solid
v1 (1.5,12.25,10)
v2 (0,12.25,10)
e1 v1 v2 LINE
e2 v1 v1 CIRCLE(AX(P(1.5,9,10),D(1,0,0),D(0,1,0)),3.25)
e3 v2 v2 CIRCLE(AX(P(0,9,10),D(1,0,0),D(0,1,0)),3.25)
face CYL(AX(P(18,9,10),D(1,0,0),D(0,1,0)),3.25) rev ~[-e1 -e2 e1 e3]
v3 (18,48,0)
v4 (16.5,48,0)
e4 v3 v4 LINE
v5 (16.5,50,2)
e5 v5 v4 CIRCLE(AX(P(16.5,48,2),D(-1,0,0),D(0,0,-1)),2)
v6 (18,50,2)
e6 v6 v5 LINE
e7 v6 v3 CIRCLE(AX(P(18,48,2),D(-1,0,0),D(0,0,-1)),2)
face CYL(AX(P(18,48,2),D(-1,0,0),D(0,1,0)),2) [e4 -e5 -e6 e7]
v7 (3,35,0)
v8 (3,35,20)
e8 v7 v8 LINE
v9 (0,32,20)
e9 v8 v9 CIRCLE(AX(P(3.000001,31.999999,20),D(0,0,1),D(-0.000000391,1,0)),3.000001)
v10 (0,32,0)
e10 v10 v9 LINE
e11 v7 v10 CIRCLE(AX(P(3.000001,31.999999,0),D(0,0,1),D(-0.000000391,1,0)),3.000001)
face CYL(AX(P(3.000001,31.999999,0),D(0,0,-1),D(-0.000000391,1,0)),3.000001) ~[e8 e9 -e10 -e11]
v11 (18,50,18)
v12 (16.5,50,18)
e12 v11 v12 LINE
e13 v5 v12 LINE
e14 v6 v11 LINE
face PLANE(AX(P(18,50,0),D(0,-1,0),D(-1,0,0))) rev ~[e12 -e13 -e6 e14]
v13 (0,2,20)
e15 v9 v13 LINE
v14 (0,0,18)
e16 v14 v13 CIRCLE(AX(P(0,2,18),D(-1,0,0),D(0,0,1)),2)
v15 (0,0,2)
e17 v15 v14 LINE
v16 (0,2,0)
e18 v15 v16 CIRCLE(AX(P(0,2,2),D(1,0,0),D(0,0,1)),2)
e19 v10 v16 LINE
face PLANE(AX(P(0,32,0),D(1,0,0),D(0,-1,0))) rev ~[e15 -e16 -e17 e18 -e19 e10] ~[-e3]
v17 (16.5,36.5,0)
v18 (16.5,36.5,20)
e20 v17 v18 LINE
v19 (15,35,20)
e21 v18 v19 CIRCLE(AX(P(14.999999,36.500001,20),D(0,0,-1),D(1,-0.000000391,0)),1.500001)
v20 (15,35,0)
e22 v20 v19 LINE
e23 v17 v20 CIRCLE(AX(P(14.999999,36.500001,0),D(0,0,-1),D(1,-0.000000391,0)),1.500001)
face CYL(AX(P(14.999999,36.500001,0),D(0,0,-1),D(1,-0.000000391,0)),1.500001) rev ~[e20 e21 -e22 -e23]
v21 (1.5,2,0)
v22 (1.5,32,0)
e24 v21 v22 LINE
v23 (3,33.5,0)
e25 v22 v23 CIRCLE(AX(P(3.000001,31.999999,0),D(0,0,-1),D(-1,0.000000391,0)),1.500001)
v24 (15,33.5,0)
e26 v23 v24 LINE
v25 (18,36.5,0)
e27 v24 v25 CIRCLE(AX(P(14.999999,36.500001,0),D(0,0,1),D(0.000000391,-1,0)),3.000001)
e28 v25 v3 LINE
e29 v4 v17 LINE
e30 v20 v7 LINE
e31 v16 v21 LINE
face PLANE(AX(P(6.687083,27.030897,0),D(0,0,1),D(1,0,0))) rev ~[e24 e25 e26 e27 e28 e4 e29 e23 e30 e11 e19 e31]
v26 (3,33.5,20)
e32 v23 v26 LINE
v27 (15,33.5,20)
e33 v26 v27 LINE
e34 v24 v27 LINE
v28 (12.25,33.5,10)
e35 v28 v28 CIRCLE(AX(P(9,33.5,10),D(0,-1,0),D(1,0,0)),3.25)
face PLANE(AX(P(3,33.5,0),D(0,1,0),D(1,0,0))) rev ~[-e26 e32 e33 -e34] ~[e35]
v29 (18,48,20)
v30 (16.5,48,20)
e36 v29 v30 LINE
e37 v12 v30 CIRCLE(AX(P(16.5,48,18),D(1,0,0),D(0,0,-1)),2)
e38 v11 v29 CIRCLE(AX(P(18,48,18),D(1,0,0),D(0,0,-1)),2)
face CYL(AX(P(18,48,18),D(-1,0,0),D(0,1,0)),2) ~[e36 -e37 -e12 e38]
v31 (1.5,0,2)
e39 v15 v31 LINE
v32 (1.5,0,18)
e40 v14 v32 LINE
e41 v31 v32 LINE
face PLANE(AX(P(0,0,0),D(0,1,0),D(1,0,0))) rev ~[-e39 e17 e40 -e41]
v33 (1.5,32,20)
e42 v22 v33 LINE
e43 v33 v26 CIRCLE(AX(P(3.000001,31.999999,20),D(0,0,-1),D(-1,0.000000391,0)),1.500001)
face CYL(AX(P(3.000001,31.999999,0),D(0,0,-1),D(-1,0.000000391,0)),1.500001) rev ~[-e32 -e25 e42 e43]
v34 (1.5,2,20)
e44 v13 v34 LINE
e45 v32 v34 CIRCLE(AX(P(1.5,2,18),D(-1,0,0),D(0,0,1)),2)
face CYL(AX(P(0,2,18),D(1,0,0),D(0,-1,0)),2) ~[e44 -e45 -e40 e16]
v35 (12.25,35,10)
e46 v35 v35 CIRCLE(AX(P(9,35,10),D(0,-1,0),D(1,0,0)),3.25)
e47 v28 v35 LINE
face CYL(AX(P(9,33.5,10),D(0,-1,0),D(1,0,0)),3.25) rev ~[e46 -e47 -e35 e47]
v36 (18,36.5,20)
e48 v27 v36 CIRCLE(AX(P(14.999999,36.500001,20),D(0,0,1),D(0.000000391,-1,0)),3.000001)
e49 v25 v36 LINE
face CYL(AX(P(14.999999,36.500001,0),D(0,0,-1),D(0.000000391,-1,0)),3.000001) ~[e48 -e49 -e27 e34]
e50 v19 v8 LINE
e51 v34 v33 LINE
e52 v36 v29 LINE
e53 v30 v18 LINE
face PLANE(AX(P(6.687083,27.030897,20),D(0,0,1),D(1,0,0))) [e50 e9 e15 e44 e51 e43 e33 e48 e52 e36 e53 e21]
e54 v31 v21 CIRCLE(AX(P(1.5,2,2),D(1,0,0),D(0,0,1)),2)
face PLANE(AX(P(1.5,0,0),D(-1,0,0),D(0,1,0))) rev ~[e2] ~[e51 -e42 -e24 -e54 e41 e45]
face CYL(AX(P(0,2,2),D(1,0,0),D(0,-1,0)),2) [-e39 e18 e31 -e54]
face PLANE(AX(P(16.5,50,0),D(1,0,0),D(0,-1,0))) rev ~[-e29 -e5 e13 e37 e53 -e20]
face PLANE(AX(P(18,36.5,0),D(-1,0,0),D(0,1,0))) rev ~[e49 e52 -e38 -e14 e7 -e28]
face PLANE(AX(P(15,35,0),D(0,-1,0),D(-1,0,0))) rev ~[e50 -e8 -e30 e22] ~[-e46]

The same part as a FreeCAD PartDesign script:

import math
import FreeCAD as App
import Part
import Sketcher

V = App.Vector
Q = App.Units.Quantity


def edges_at(feature, points):
    """Names of the edges that pass closest to the given points."""
    edges = feature.Shape.Edges
    near = lambda p: min(range(len(edges)), key=lambda i: edges[i].distToShape(Part.Vertex(*p))[0])
    return sorted({f"Edge{near(p) + 1}" for p in points})

doc = App.newDocument("Part")
body = doc.addObject("PartDesign::Body", "Body")

# Sketch on XY plane
sketch1 = doc.addObject("Sketcher::SketchObject", "Sketch")
body.addObject(sketch1)
sketch1.AttachmentSupport = (doc.XY_Plane, [""])
sketch1.MapMode = "FlatFace"
sketch1.addGeometry(Part.LineSegment(V(0, 32, 0), V(0, 0, 0)), False)
sketch1.addGeometry(Part.LineSegment(V(0, 0, 0), V(1.5, 0, 0)), False)
sketch1.addGeometry(Part.LineSegment(V(1.5, 0, 0), V(1.5, 32, 0)), False)
sketch1.addGeometry(Part.ArcOfCircle(Part.Circle(V(3, 32, 0), V(0, 0, 1), 1.5), math.radians(90), math.radians(180)), False)
sketch1.addGeometry(Part.LineSegment(V(3, 33.5, 0), V(15, 33.5, 0)), False)
sketch1.addGeometry(Part.ArcOfCircle(Part.Circle(V(15, 36.5, 0), V(0, 0, 1), 3), math.radians(-90), math.radians(0)), False)
sketch1.addGeometry(Part.LineSegment(V(18, 36.5, 0), V(18, 50, 0)), False)
sketch1.addGeometry(Part.LineSegment(V(18, 50, 0), V(16.5, 50, 0)), False)
sketch1.addGeometry(Part.LineSegment(V(16.5, 50, 0), V(16.5, 36.5, 0)), False)
sketch1.addGeometry(Part.ArcOfCircle(Part.Circle(V(15, 36.5, 0), V(0, 0, 1), 1.5), math.radians(-90), math.radians(0)), False)
sketch1.addGeometry(Part.LineSegment(V(15, 35, 0), V(3, 35, 0)), False)
sketch1.addGeometry(Part.ArcOfCircle(Part.Circle(V(3, 32, 0), V(0, 0, 1), 3), math.radians(90), math.radians(180)), False)
sketch1.addConstraint(Sketcher.Constraint("Coincident", 0, 2, 1, 1))
sketch1.addConstraint(Sketcher.Constraint("Coincident", 1, 2, 2, 1))
sketch1.addConstraint(Sketcher.Constraint("Tangent", 2, 2, 3, 2))
sketch1.addConstraint(Sketcher.Constraint("Tangent", 3, 1, 4, 1))
sketch1.addConstraint(Sketcher.Constraint("Tangent", 4, 2, 5, 1))
sketch1.addConstraint(Sketcher.Constraint("Tangent", 5, 2, 6, 1))
sketch1.addConstraint(Sketcher.Constraint("Coincident", 6, 2, 7, 1))
sketch1.addConstraint(Sketcher.Constraint("Coincident", 7, 2, 8, 1))
sketch1.addConstraint(Sketcher.Constraint("Tangent", 8, 2, 9, 2))
sketch1.addConstraint(Sketcher.Constraint("Tangent", 9, 1, 10, 1))
sketch1.addConstraint(Sketcher.Constraint("Tangent", 10, 2, 11, 1))
sketch1.addConstraint(Sketcher.Constraint("Tangent", 11, 2, 0, 1))
sketch1.addConstraint(Sketcher.Constraint("Vertical", 0))
sketch1.addConstraint(Sketcher.Constraint("Horizontal", 1))
sketch1.addConstraint(Sketcher.Constraint("Vertical", 2))
sketch1.addConstraint(Sketcher.Constraint("Horizontal", 4))
sketch1.addConstraint(Sketcher.Constraint("Vertical", 6))
sketch1.addConstraint(Sketcher.Constraint("Horizontal", 7))
sketch1.addConstraint(Sketcher.Constraint("Vertical", 8))
sketch1.addConstraint(Sketcher.Constraint("Horizontal", 10))
sketch1.addConstraint(Sketcher.Constraint("Coincident", 0, 2, -1, 1))
sketch1.addConstraint(Sketcher.Constraint("Coincident", 9, 3, 5, 3))
sketch1.addConstraint(Sketcher.Constraint("Coincident", 11, 3, 3, 3))
sketch1.addConstraint(Sketcher.Constraint("Equal", 3, 9))
sketch1.addConstraint(Sketcher.Constraint("Radius", 5, Q("3.000001 mm")))
sketch1.addConstraint(Sketcher.Constraint("Radius", 3, Q("1.500001 mm")))
sketch1.addConstraint(Sketcher.Constraint("DistanceX", 4, 1, 4, 2, Q("12 mm")))
sketch1.addConstraint(Sketcher.Constraint("DistanceY", 0, 2, 0, 1, Q("32 mm")))
sketch1.addConstraint(Sketcher.Constraint("DistanceY", 6, 1, 6, 2, Q("13.5 mm")))
pad1 = doc.addObject("PartDesign::Pad", "Pad")
body.addObject(pad1)
pad1.Profile = sketch1
pad1.Length = 20
doc.recompute()

fillet = doc.addObject("PartDesign::Fillet", "Fillet")
body.addObject(fillet)
fillet.Base = (pad1, edges_at(pad1, [
    (0.75, 0, 20),
    (0.75, 0, 0),
    (17.25, 50, 20),
    (17.25, 50, 0),
]))
fillet.Radius = 2

# Sketch on YZ plane
sketch2 = doc.addObject("Sketcher::SketchObject", "Sketch001")
body.addObject(sketch2)
sketch2.AttachmentSupport = (doc.YZ_Plane, [""])
sketch2.MapMode = "FlatFace"
sketch2.AttachmentOffset = App.Placement(V(0, 0, 18), App.Rotation())
sketch2.addGeometry(Part.Circle(V(9, 10, 0), V(0, 0, 1), 3.2), False)
sketch2.addConstraint(Sketcher.Constraint("Diameter", 0, Q("6.5 mm")))
sketch2.addConstraint(Sketcher.Constraint("DistanceX", -1, 1, 0, 3, Q("9 mm")))
sketch2.addConstraint(Sketcher.Constraint("DistanceY", -1, 1, 0, 3, Q("10 mm")))
pocket1 = doc.addObject("PartDesign::Pocket", "Pocket")
body.addObject(pocket1)
pocket1.Profile = sketch2
pocket1.Length = 50

# Sketch on XZ plane
sketch3 = doc.addObject("Sketcher::SketchObject", "Sketch002")
body.addObject(sketch3)
sketch3.AttachmentSupport = (doc.XZ_Plane, [""])
sketch3.MapMode = "FlatFace"
sketch3.AttachmentOffset = App.Placement(V(0, 0, -33.5), App.Rotation())
sketch3.addGeometry(Part.Circle(V(9, 10, 0), V(0, 0, 1), 3.2), False)
sketch3.addConstraint(Sketcher.Constraint("Diameter", 0, Q("6.5 mm")))
sketch3.addConstraint(Sketcher.Constraint("DistanceX", -1, 1, 0, 3, Q("9 mm")))
sketch3.addConstraint(Sketcher.Constraint("DistanceY", -1, 1, 0, 3, Q("10 mm")))
pocket2 = doc.addObject("PartDesign::Pocket", "Pocket001")
body.addObject(pocket2)
pocket2.Profile = sketch3
pocket2.Length = 25

doc.recompute()
